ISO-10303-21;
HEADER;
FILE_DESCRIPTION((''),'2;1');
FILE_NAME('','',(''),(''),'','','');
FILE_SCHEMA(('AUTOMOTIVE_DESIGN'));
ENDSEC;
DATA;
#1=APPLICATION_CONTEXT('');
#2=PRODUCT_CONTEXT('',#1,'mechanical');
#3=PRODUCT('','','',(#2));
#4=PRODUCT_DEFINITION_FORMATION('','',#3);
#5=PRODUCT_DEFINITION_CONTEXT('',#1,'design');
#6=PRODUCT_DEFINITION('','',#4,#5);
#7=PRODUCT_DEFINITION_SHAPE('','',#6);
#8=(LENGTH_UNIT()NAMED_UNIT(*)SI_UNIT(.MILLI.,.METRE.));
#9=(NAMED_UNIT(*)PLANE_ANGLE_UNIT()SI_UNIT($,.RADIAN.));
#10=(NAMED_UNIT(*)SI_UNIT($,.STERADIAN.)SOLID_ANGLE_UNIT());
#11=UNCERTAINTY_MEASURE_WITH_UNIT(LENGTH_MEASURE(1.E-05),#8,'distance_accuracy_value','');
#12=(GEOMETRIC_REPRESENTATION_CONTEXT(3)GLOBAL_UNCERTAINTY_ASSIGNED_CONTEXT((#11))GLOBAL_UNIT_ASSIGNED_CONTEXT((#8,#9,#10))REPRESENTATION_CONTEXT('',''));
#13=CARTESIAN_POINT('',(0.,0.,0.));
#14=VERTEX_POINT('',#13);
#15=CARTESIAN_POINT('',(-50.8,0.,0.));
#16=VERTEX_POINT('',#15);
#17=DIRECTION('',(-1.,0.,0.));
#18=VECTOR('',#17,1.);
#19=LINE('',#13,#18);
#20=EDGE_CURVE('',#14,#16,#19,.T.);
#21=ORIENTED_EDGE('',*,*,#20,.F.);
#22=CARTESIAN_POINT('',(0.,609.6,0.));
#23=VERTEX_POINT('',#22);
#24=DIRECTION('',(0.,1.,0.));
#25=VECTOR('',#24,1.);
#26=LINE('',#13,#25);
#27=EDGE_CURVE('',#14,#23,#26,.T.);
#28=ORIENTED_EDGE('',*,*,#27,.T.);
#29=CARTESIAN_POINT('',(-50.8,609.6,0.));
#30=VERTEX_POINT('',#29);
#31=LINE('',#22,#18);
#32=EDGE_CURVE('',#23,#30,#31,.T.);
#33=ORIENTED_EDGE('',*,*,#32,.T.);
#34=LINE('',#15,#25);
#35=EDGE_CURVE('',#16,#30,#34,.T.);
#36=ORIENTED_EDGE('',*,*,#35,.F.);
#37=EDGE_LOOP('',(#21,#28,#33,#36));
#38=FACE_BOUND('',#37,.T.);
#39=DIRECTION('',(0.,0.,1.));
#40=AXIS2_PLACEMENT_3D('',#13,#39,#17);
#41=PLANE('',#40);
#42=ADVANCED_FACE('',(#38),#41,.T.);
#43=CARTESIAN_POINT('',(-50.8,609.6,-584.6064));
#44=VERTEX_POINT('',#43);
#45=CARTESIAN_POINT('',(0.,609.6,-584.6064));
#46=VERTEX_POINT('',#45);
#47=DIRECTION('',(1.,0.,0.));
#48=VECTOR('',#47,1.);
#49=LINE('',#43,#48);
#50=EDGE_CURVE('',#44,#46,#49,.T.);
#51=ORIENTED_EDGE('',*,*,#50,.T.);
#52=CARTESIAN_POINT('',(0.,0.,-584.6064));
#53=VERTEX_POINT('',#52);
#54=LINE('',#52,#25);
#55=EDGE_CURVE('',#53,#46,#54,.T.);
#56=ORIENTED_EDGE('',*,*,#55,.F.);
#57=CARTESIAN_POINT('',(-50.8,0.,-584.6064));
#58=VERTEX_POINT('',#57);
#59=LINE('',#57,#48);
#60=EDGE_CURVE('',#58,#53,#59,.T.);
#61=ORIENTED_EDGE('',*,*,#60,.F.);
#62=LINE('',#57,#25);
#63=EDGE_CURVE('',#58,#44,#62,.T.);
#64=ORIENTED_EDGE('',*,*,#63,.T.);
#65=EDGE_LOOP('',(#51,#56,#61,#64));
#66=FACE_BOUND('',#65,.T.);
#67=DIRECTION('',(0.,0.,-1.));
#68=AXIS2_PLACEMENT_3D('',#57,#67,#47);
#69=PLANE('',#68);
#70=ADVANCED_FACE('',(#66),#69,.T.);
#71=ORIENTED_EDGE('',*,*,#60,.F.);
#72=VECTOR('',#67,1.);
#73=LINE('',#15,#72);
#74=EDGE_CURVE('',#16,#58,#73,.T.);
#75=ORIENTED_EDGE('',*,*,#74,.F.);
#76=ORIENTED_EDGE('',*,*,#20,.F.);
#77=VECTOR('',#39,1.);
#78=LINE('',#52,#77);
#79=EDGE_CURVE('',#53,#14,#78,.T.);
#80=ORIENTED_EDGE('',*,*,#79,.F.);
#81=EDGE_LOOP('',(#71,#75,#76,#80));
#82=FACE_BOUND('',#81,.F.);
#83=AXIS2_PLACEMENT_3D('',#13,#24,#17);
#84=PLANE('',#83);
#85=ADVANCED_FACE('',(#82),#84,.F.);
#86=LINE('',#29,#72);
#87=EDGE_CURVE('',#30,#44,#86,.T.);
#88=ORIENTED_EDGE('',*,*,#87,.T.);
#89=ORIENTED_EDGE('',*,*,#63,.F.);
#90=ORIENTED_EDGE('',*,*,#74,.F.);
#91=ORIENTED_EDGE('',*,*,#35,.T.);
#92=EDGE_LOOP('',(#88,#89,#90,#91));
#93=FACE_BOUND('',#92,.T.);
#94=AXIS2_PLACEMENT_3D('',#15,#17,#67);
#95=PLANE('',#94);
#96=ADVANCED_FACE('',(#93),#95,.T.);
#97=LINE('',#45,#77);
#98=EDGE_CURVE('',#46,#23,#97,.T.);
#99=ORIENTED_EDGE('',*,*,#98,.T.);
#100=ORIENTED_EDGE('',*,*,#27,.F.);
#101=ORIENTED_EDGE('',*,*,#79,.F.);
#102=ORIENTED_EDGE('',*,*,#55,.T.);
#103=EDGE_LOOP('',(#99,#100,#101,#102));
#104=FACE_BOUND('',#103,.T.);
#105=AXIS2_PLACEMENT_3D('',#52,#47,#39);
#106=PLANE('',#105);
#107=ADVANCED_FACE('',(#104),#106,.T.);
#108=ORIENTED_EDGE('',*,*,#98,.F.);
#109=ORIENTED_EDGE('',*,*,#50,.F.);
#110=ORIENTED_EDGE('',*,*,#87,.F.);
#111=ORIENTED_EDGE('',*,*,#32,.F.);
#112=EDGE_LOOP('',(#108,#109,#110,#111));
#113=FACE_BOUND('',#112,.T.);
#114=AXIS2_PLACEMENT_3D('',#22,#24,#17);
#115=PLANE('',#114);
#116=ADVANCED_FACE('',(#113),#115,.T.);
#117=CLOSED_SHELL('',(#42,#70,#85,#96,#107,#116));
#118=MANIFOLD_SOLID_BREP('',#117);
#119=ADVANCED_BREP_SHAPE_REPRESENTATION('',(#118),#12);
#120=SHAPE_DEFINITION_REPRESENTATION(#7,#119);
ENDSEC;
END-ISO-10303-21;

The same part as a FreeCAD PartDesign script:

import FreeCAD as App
import Part
import Sketcher
Q = App.Units.Quantity

doc = App.newDocument("Part")
body = doc.addObject("PartDesign::Body", "Body")

# Sketch on XZ plane
sketch1 = body.newObject("Sketcher::SketchObject", "Sketch")
sketch1.AttachmentSupport = (doc.getObject("XZ_Plane"), [""])
sketch1.MapMode = "FlatFace"
sketch1.addGeometry([
    Part.LineSegment(App.Vector(-51, 0, 0), App.Vector(0, 0, 0)),
    Part.LineSegment(App.Vector(0, 0, 0), App.Vector(0, -585, 0)),
    Part.LineSegment(App.Vector(0, -585, 0), App.Vector(-51, -585, 0)),
    Part.LineSegment(App.Vector(-51, -585, 0), App.Vector(-51, 0, 0)),
], False)
sketch1.addConstraint([
    Sketcher.Constraint("Coincident", 0, 2, 1, 1),
    Sketcher.Constraint("Coincident", 1, 2, 2, 1),
    Sketcher.Constraint("Coincident", 2, 2, 3, 1),
    Sketcher.Constraint("Coincident", 3, 2, 0, 1),
    Sketcher.Constraint("Horizontal", 0),
    Sketcher.Constraint("Vertical", 1),
    Sketcher.Constraint("Horizontal", 2),
    Sketcher.Constraint("Vertical", 3),
    Sketcher.Constraint("Coincident", 0, 2, -1, 1),
    Sketcher.Constraint("DistanceX", 0, 1, 0, 2, Q("2 in")),
    Sketcher.Constraint("DistanceY", 1, 2, 1, 1, Q("23.016 in")),
])
pad1 = body.newObject("PartDesign::Pad", "Pad")
pad1.Profile = sketch1
pad1.Length = Q("24 in")
pad1.Reversed = True

doc.recompute()
